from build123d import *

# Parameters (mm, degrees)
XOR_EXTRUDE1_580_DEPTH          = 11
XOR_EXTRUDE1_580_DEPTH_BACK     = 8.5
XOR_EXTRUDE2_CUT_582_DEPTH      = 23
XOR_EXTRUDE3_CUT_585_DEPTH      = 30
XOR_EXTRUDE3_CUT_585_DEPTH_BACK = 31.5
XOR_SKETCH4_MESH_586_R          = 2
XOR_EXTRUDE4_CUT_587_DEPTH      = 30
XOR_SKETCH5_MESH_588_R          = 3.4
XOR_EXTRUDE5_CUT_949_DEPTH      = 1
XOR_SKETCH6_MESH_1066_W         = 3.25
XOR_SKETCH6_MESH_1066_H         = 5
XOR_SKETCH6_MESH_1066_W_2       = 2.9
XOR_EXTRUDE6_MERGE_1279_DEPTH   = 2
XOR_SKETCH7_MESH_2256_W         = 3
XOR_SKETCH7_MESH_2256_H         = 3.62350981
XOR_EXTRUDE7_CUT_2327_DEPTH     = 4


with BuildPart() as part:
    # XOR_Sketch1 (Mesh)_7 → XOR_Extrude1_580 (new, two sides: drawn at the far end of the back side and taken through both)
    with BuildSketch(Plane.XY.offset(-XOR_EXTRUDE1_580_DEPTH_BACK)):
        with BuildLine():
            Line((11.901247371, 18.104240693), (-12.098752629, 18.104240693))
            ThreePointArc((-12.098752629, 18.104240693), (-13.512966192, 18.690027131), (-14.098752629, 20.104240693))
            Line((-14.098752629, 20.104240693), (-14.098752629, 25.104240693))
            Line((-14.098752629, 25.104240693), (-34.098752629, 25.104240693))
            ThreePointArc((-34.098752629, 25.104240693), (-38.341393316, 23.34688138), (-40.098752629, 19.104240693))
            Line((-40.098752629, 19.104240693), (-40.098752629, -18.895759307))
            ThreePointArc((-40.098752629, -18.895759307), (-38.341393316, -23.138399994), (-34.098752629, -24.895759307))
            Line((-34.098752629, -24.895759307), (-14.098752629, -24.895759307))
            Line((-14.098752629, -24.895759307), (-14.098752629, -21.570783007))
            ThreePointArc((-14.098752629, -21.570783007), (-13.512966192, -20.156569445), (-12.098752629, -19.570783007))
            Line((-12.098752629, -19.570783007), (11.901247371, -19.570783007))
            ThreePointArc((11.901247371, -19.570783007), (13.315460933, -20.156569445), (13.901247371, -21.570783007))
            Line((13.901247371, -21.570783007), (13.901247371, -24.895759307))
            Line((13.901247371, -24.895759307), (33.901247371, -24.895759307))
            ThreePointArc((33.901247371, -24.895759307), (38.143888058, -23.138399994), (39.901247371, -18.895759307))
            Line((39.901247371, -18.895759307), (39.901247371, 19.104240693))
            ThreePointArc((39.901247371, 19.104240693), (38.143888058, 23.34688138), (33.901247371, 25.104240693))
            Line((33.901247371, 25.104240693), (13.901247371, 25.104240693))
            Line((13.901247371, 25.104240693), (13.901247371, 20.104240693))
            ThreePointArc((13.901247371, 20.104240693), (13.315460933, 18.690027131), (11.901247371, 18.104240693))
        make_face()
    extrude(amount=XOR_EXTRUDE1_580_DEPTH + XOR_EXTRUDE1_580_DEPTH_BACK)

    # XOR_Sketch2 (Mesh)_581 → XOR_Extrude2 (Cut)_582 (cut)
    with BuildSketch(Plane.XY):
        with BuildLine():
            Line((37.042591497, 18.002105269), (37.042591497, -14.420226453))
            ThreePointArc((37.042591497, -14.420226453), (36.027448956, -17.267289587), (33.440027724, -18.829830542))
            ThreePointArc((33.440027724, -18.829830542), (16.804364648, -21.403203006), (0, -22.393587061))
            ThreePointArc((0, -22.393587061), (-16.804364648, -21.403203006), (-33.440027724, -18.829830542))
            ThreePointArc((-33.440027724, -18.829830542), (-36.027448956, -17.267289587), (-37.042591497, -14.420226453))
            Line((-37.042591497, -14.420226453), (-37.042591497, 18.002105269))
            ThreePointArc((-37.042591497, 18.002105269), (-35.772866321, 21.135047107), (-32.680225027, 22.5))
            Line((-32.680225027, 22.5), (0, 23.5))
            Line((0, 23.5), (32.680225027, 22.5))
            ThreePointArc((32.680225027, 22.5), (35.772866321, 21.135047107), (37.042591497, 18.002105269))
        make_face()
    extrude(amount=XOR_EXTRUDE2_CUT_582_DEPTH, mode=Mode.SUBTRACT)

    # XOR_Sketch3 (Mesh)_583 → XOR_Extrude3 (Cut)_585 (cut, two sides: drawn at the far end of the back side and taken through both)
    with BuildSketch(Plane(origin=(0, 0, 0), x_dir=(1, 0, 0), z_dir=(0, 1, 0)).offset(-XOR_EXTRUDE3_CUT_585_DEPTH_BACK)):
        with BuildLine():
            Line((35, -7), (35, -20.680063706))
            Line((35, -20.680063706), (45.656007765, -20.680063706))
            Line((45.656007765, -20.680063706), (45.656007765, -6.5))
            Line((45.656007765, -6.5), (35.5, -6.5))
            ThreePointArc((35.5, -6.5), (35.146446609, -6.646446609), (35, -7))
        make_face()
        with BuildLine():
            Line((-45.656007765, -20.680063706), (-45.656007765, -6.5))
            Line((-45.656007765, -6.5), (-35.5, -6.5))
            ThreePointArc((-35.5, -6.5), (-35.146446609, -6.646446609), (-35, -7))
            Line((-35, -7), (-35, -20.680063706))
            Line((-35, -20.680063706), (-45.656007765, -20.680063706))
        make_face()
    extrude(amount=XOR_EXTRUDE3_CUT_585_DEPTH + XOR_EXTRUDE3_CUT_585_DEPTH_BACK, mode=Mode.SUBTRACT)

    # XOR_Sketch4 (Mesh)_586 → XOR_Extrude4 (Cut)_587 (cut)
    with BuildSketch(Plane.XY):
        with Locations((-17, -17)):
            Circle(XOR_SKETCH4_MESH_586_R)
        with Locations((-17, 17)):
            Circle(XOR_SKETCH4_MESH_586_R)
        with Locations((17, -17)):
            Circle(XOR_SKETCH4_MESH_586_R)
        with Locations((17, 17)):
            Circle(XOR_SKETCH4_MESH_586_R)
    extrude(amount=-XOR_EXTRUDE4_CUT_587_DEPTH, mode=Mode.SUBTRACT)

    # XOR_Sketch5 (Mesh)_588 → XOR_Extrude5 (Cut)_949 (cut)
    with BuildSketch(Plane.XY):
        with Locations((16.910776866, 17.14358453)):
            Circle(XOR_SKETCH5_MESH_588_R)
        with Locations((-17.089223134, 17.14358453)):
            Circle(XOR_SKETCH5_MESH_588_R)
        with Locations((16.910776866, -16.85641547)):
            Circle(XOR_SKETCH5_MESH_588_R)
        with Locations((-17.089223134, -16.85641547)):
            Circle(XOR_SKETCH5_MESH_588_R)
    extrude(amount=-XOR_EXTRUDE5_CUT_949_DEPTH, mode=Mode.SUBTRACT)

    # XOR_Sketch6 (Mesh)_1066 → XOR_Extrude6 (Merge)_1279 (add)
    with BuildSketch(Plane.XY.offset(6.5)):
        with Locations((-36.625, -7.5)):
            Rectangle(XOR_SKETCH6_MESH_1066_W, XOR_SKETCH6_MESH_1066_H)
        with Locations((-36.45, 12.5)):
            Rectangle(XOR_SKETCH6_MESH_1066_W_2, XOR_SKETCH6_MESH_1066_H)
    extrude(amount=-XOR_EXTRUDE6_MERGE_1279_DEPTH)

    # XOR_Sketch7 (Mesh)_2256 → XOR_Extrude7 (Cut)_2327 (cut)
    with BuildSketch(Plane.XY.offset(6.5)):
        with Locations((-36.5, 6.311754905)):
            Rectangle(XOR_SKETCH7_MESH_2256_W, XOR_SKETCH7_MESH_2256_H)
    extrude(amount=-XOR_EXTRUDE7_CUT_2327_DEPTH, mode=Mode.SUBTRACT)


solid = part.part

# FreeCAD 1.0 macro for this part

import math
import FreeCAD as App
import Part
import Sketcher
from FreeCAD import Vector

doc = App.newDocument("Part")
body = doc.addObject("PartDesign::Body", "Body")

sketch1 = doc.addObject("Sketcher::SketchObject", "Sketch")
body.addObject(sketch1)
sketch1.AttachmentSupport = (doc.XY_Plane, [""])
sketch1.MapMode = "FlatFace"
sketch1.addGeometry(Part.LineSegment(Vector(11.9, 18.1, 0), Vector(-12.1, 18.1, 0)), False)
sketch1.addGeometry(Part.ArcOfCircle(Part.Circle(Vector(-12.1, 20.1, 0), Vector(0, 0, 1), 2), math.radians(180), math.radians(270)), False)
sketch1.addGeometry(Part.LineSegment(Vector(-14.1, 20.1, 0), Vector(-14.1, 25.1, 0)), False)
sketch1.addGeometry(Part.LineSegment(Vector(-14.1, 25.1, 0), Vector(-34.1, 25.1, 0)), False)
sketch1.addGeometry(Part.ArcOfCircle(Part.Circle(Vector(-34.1, 19.1, 0), Vector(0, 0, 1), 6), math.radians(90), math.radians(180)), False)
sketch1.addGeometry(Part.LineSegment(Vector(-40.1, 19.1, 0), Vector(-40.1, -18.9, 0)), False)
sketch1.addGeometry(Part.ArcOfCircle(Part.Circle(Vector(-34.1, -18.9, 0), Vector(0, 0, 1), 6), math.radians(180), math.radians(270)), False)
sketch1.addGeometry(Part.LineSegment(Vector(-34.1, -24.9, 0), Vector(-14.1, -24.9, 0)), False)
sketch1.addGeometry(Part.LineSegment(Vector(-14.1, -24.9, 0), Vector(-14.1, -21.6, 0)), False)
sketch1.addGeometry(Part.ArcOfCircle(Part.Circle(Vector(-12.1, -21.6, 0), Vector(0, 0, 1), 2), math.radians(90), math.radians(180)), False)
sketch1.addGeometry(Part.LineSegment(Vector(-12.1, -19.6, 0), Vector(11.9, -19.6, 0)), False)
sketch1.addGeometry(Part.ArcOfCircle(Part.Circle(Vector(11.9, -21.6, 0), Vector(0, 0, 1), 2), math.radians(0), math.radians(90)), False)
sketch1.addGeometry(Part.LineSegment(Vector(13.9, -21.6, 0), Vector(13.9, -24.9, 0)), False)
sketch1.addGeometry(Part.LineSegment(Vector(13.9, -24.9, 0), Vector(33.9, -24.9, 0)), False)
sketch1.addGeometry(Part.ArcOfCircle(Part.Circle(Vector(33.9, -18.9, 0), Vector(0, 0, 1), 6), math.radians(-90), math.radians(0)), False)
sketch1.addGeometry(Part.LineSegment(Vector(39.9, -18.9, 0), Vector(39.9, 19.1, 0)), False)
sketch1.addGeometry(Part.ArcOfCircle(Part.Circle(Vector(33.9, 19.1, 0), Vector(0, 0, 1), 6), math.radians(0), math.radians(90)), False)
sketch1.addGeometry(Part.LineSegment(Vector(33.9, 25.1, 0), Vector(13.9, 25.1, 0)), False)
sketch1.addGeometry(Part.LineSegment(Vector(13.9, 25.1, 0), Vector(13.9, 20.1, 0)), False)
sketch1.addGeometry(Part.ArcOfCircle(Part.Circle(Vector(11.9, 20.1, 0), Vector(0, 0, 1), 2), math.radians(-90), math.radians(0)), False)
sketch1.addConstraint(Sketcher.Constraint("Tangent", 0, 2, 1, 2))
sketch1.addConstraint(Sketcher.Constraint("Tangent", 1, 1, 2, 1))
sketch1.addConstraint(Sketcher.Constraint("Coincident", 2, 2, 3, 1))
sketch1.addConstraint(Sketcher.Constraint("Tangent", 3, 2, 4, 1))
sketch1.addConstraint(Sketcher.Constraint("Tangent", 4, 2, 5, 1))
sketch1.addConstraint(Sketcher.Constraint("Tangent", 5, 2, 6, 1))
sketch1.addConstraint(Sketcher.Constraint("Tangent", 6, 2, 7, 1))
sketch1.addConstraint(Sketcher.Constraint("Coincident", 7, 2, 8, 1))
sketch1.addConstraint(Sketcher.Constraint("Tangent", 8, 2, 9, 2))
sketch1.addConstraint(Sketcher.Constraint("Tangent", 9, 1, 10, 1))
sketch1.addConstraint(Sketcher.Constraint("Tangent", 10, 2, 11, 2))
sketch1.addConstraint(Sketcher.Constraint("Tangent", 11, 1, 12, 1))
sketch1.addConstraint(Sketcher.Constraint("Coincident", 12, 2, 13, 1))
sketch1.addConstraint(Sketcher.Constraint("Tangent", 13, 2, 14, 1))
sketch1.addConstraint(Sketcher.Constraint("Tangent", 14, 2, 15, 1))
sketch1.addConstraint(Sketcher.Constraint("Tangent", 15, 2, 16, 1))
sketch1.addConstraint(Sketcher.Constraint("Tangent", 16, 2, 17, 1))
sketch1.addConstraint(Sketcher.Constraint("Coincident", 17, 2, 18, 1))
sketch1.addConstraint(Sketcher.Constraint("Tangent", 18, 2, 19, 2))
sketch1.addConstraint(Sketcher.Constraint("Tangent", 19, 1, 0, 1))
sketch1.addConstraint(Sketcher.Constraint("Horizontal", 0))
sketch1.addConstraint(Sketcher.Constraint("Vertical", 2))
sketch1.addConstraint(Sketcher.Constraint("Horizontal", 3))
sketch1.addConstraint(Sketcher.Constraint("Vertical", 5))
sketch1.addConstraint(Sketcher.Constraint("Horizontal", 7))
sketch1.addConstraint(Sketcher.Constraint("Vertical", 8))
sketch1.addConstraint(Sketcher.Constraint("Horizontal", 10))
sketch1.addConstraint(Sketcher.Constraint("Vertical", 12))
sketch1.addConstraint(Sketcher.Constraint("Horizontal", 13))
sketch1.addConstraint(Sketcher.Constraint("Vertical", 15))
sketch1.addConstraint(Sketcher.Constraint("Horizontal", 17))
sketch1.addConstraint(Sketcher.Constraint("Vertical", 18))
sketch1.addConstraint(Sketcher.Constraint("Equal", 4, 6))
sketch1.addConstraint(Sketcher.Constraint("Equal", 1, 9))
sketch1.addConstraint(Sketcher.Constraint("Equal", 9, 11))
sketch1.addConstraint(Sketcher.Constraint("Equal", 6, 14))
sketch1.addConstraint(Sketcher.Constraint("Equal", 14, 16))
sketch1.addConstraint(Sketcher.Constraint("Equal", 11, 19))
sketch1.addConstraint(Sketcher.Constraint("Horizontal", 6, 3, 14, 3))
sketch1.addConstraint(Sketcher.Constraint("Horizontal", 4, 3, 16, 3))
sketch1.addConstraint(Sketcher.Constraint("Vertical", 1, 3, 9, 3))
sketch1.addConstraint(Sketcher.Constraint("Vertical", 11, 3, 19, 3))
sketch1.addConstraint(Sketcher.Constraint("Equal", 7, 13))
sketch1.addConstraint(Sketcher.Constraint("Radius", 1, 2.0))
sketch1.addConstraint(Sketcher.Constraint("Radius", 4, 6.0))
sketch1.addConstraint(Sketcher.Constraint("DistanceX", 0, 2, 0, 1, 24.0))
sketch1.addConstraint(Sketcher.Constraint("DistanceX", 3, 2, 3, 1, 20.0))
sketch1.addConstraint(Sketcher.Constraint("DistanceY", 2, 1, 2, 2, 5.0))
sketch1.addConstraint(Sketcher.Constraint("DistanceY", 5, 2, 5, 1, 38.0))
sketch1.addConstraint(Sketcher.Constraint("DistanceY", 8, 1, 8, 2, 3.324976))
sketch1.addConstraint(Sketcher.Constraint("DistanceY", -1, 1, 1, 3, 20.104241))
sketch1.addConstraint(Sketcher.Constraint("DistanceX", 1, 3, -1, 1, 12.098753))
pad1 = doc.addObject("PartDesign::Pad", "Pad")
body.addObject(pad1)
pad1.Profile = sketch1
pad1.Type = "TwoLengths"
pad1.Length = 11
pad1.Length2 = 8.5

sketch2 = doc.addObject("Sketcher::SketchObject", "Sketch001")
body.addObject(sketch2)
sketch2.AttachmentSupport = (doc.XY_Plane, [""])
sketch2.MapMode = "FlatFace"
sketch2.addGeometry(Part.LineSegment(Vector(37, -14.4, 0), Vector(37, 18, 0)), False)
sketch2.addGeometry(Part.ArcOfCircle(Part.Circle(Vector(32.5, 18, 0), Vector(0, 0, 1), 4.5), math.radians(0), math.radians(88)), False)
sketch2.addGeometry(Part.LineSegment(Vector(32.7, 22.5, 0), Vector(0, 23.5, 0)), False)
sketch2.addGeometry(Part.LineSegment(Vector(0, 23.5, 0), Vector(-32.7, 22.5, 0)), False)
sketch2.addGeometry(Part.ArcOfCircle(Part.Circle(Vector(-32.5, 18, 0), Vector(0, 0, 1), 4.5), math.radians(92), math.radians(180)), False)
sketch2.addGeometry(Part.LineSegment(Vector(-37, 18, 0), Vector(-37, -14.4, 0)), False)
sketch2.addGeometry(Part.ArcOfCircle(Part.Circle(Vector(-32.5, -14.4, 0), Vector(0, 0, 1), 4.5), math.radians(-180), math.radians(-102)), False)
sketch2.addGeometry(Part.ArcOfCircle(Part.Circle(Vector(2.1, 155.6, 0), Vector(0, 0, 1), 178), math.radians(-101.5), math.radians(-90.66)), False)
sketch2.addGeometry(Part.ArcOfCircle(Part.Circle(Vector(-2.1, 155.6, 0), Vector(0, 0, 1), 178), math.radians(-89.34), math.radians(-78.5)), False)
sketch2.addGeometry(Part.ArcOfCircle(Part.Circle(Vector(32.5, -14.4, 0), Vector(0, 0, 1), 4.5), math.radians(-78), math.radians(0)), False)
sketch2.addConstraint(Sketcher.Constraint("Tangent", 0, 2, 1, 1))
sketch2.addConstraint(Sketcher.Constraint("Tangent", 1, 2, 2, 1))
sketch2.addConstraint(Sketcher.Constraint("Coincident", 2, 2, 3, 1))
sketch2.addConstraint(Sketcher.Constraint("Tangent", 3, 2, 4, 1))
sketch2.addConstraint(Sketcher.Constraint("Tangent", 4, 2, 5, 1))
sketch2.addConstraint(Sketcher.Constraint("Tangent", 5, 2, 6, 1))
sketch2.addConstraint(Sketcher.Constraint("Tangent", 6, 2, 7, 1))
sketch2.addConstraint(Sketcher.Constraint("Coincident", 7, 2, 8, 1))
sketch2.addConstraint(Sketcher.Constraint("Tangent", 8, 2, 9, 1))
sketch2.addConstraint(Sketcher.Constraint("Tangent", 9, 2, 0, 1))
sketch2.addConstraint(Sketcher.Constraint("Vertical", 0))
sketch2.addConstraint(Sketcher.Constraint("Vertical", 5))
sketch2.addConstraint(Sketcher.Constraint("Equal", 1, 4))
sketch2.addConstraint(Sketcher.Constraint("Equal", 4, 6))
sketch2.addConstraint(Sketcher.Constraint("Equal", 7, 8))
sketch2.addConstraint(Sketcher.Constraint("Equal", 6, 9))
sketch2.addConstraint(Sketcher.Constraint("Symmetric", 1, 3, 4, 3, -2))
sketch2.addConstraint(Sketcher.Constraint("Symmetric", 7, 3, 8, 3, -2))
sketch2.addConstraint(Sketcher.Constraint("PointOnObject", 2, 2, -2))
sketch2.addConstraint(Sketcher.Constraint("Radius", 7, 178.0))
sketch2.addConstraint(Sketcher.Constraint("Radius", 1, 4.5))
sketch2.addConstraint(Sketcher.Constraint("DistanceY", 1, 2, 2, 2, 1.0))
sketch2.addConstraint(Sketcher.Constraint("DistanceY", -1, 1, 1, 2, 22.5))
sketch2.addConstraint(Sketcher.Constraint("DistanceY", 0, 1, 0, 2, 32.422332))
sketch2.addConstraint(Sketcher.Constraint("Distance", 2, 32.695521))
sketch2.addConstraint(Sketcher.Constraint("DistanceX", -1, 1, 7, 3, 2.058561))
pocket1 = doc.addObject("PartDesign::Pocket", "Pocket")
body.addObject(pocket1)
pocket1.Profile = sketch2
pocket1.Length = 23
pocket1.Reversed = True

sketch3 = doc.addObject("Sketcher::SketchObject", "Sketch002")
body.addObject(sketch3)
sketch3.AttachmentSupport = (doc.XZ_Plane, [""])
sketch3.MapMode = "FlatFace"
sketch3.addGeometry(Part.LineSegment(Vector(35, 7, 0), Vector(35, 20.68, 0)), False)
sketch3.addGeometry(Part.LineSegment(Vector(35, 20.68, 0), Vector(45.66, 20.68, 0)), False)
sketch3.addGeometry(Part.LineSegment(Vector(45.66, 20.68, 0), Vector(45.66, 6.5, 0)), False)
sketch3.addGeometry(Part.LineSegment(Vector(45.66, 6.5, 0), Vector(35.5, 6.5, 0)), False)
sketch3.addGeometry(Part.ArcOfCircle(Part.Circle(Vector(35.5, 7, 0), Vector(0, 0, 1), 0.5), math.radians(180), math.radians(270)), False)
sketch3.addGeometry(Part.LineSegment(Vector(-45.66, 6.5, 0), Vector(-45.66, 20.68, 0)), False)
sketch3.addGeometry(Part.LineSegment(Vector(-45.66, 20.68, 0), Vector(-35, 20.68, 0)), False)
sketch3.addGeometry(Part.LineSegment(Vector(-35, 20.68, 0), Vector(-35, 7, 0)), False)
sketch3.addGeometry(Part.ArcOfCircle(Part.Circle(Vector(-35.5, 7, 0), Vector(0, 0, 1), 0.5), math.radians(-90), math.radians(0)), False)
sketch3.addGeometry(Part.LineSegment(Vector(-35.5, 6.5, 0), Vector(-45.66, 6.5, 0)), False)
sketch3.addConstraint(Sketcher.Constraint("Coincident", 0, 2, 1, 1))
sketch3.addConstraint(Sketcher.Constraint("Coincident", 1, 2, 2, 1))
sketch3.addConstraint(Sketcher.Constraint("Coincident", 2, 2, 3, 1))
sketch3.addConstraint(Sketcher.Constraint("Tangent", 3, 2, 4, 2))
sketch3.addConstraint(Sketcher.Constraint("Tangent", 4, 1, 0, 1))
sketch3.addConstraint(Sketcher.Constraint("Coincident", 5, 2, 6, 1))
sketch3.addConstraint(Sketcher.Constraint("Coincident", 6, 2, 7, 1))
sketch3.addConstraint(Sketcher.Constraint("Tangent", 7, 2, 8, 2))
sketch3.addConstraint(Sketcher.Constraint("Tangent", 8, 1, 9, 1))
sketch3.addConstraint(Sketcher.Constraint("Coincident", 9, 2, 5, 1))
sketch3.addConstraint(Sketcher.Constraint("Vertical", 0))
sketch3.addConstraint(Sketcher.Constraint("Horizontal", 1))
sketch3.addConstraint(Sketcher.Constraint("Vertical", 2))
sketch3.addConstraint(Sketcher.Constraint("Horizontal", 3))
sketch3.addConstraint(Sketcher.Constraint("Vertical", 5))
sketch3.addConstraint(Sketcher.Constraint("Horizontal", 6))
sketch3.addConstraint(Sketcher.Constraint("Vertical", 7))
sketch3.addConstraint(Sketcher.Constraint("Horizontal", 9))
sketch3.addConstraint(Sketcher.Constraint("Equal", 4, 8))
sketch3.addConstraint(Sketcher.Constraint("Symmetric", 4, 3, 8, 3, -2))
sketch3.addConstraint(Sketcher.Constraint("Symmetric", 1, 2, 5, 2, -2))
sketch3.addConstraint(Sketcher.Constraint("Radius", 4, 0.5))
sketch3.addConstraint(Sketcher.Constraint("DistanceY", -1, 1, 4, 3, 7.0))
sketch3.addConstraint(Sketcher.Constraint("DistanceX", -1, 1, 0, 2, 35.0))
sketch3.addConstraint(Sketcher.Constraint("DistanceX", 1, 1, 1, 2, 10.656008))
sketch3.addConstraint(Sketcher.Constraint("DistanceY", 0, 1, 0, 2, 13.680064))
pocket2 = doc.addObject("PartDesign::Pocket", "Pocket001")
body.addObject(pocket2)
pocket2.Profile = sketch3
pocket2.Type = "ThroughAll"
pocket2.Midplane = True

sketch4 = doc.addObject("Sketcher::SketchObject", "Sketch003")
body.addObject(sketch4)
sketch4.AttachmentSupport = (doc.XY_Plane, [""])
sketch4.MapMode = "FlatFace"
sketch4.addGeometry(Part.Circle(Vector(-17, -17, 0), Vector(0, 0, 1), 2), False)
sketch4.addGeometry(Part.Circle(Vector(-17, 17, 0), Vector(0, 0, 1), 2), False)
sketch4.addGeometry(Part.Circle(Vector(17, -17, 0), Vector(0, 0, 1), 2), False)
sketch4.addGeometry(Part.Circle(Vector(17, 17, 0), Vector(0, 0, 1), 2), False)
sketch4.addConstraint(Sketcher.Constraint("Equal", 0, 1))
sketch4.addConstraint(Sketcher.Constraint("Equal", 1, 2))
sketch4.addConstraint(Sketcher.Constraint("Equal", 2, 3))
sketch4.addConstraint(Sketcher.Constraint("Symmetric", 1, 3, 2, 3, -1, 1))
sketch4.addConstraint(Sketcher.Constraint("Symmetric", 0, 3, 3, 3, -1, 1))
sketch4.addConstraint(Sketcher.Constraint("Symmetric", 0, 3, 2, 3, -2))
sketch4.addConstraint(Sketcher.Constraint("Diameter", 0, 4.0))
sketch4.addConstraint(Sketcher.Constraint("DistanceX", 0, 3, -1, 1, 17.0))
sketch4.addConstraint(Sketcher.Constraint("DistanceY", 0, 3, -1, 1, 17.0))
pocket3 = doc.addObject("PartDesign::Pocket", "Pocket002")
body.addObject(pocket3)
pocket3.Profile = sketch4
pocket3.Length = 30

sketch5 = doc.addObject("Sketcher::SketchObject", "Sketch004")
body.addObject(sketch5)
sketch5.AttachmentSupport = (doc.XY_Plane, [""])
sketch5.MapMode = "FlatFace"
sketch5.addGeometry(Part.Circle(Vector(16.9, 17.1, 0), Vector(0, 0, 1), 3.4), False)
sketch5.addGeometry(Part.Circle(Vector(-17.1, 17.1, 0), Vector(0, 0, 1), 3.4), False)
sketch5.addGeometry(Part.Circle(Vector(16.9, -16.9, 0), Vector(0, 0, 1), 3.4), False)
sketch5.addGeometry(Part.Circle(Vector(-17.1, -16.9, 0), Vector(0, 0, 1), 3.4), False)
sketch5.addConstraint(Sketcher.Constraint("Equal", 0, 1))
sketch5.addConstraint(Sketcher.Constraint("Equal", 1, 2))
sketch5.addConstraint(Sketcher.Constraint("Equal", 2, 3))
sketch5.addConstraint(Sketcher.Constraint("Horizontal", 0, 3, 1, 3))
sketch5.addConstraint(Sketcher.Constraint("Horizontal", 2, 3, 3, 3))
sketch5.addConstraint(Sketcher.Constraint("Vertical", 0, 3, 2, 3))
sketch5.addConstraint(Sketcher.Constraint("Vertical", 1, 3, 3, 3))
sketch5.addConstraint(Sketcher.Constraint("Diameter", 0, 6.8))
sketch5.addConstraint(Sketcher.Constraint("DistanceX", 1, 3, 0, 3, 34.0))
sketch5.addConstraint(Sketcher.Constraint("DistanceY", 2, 3, 0, 3, 34.0))
sketch5.addConstraint(Sketcher.Constraint("DistanceX", -1, 1, 0, 3, 16.910777))
sketch5.addConstraint(Sketcher.Constraint("DistanceY", -1, 1, 0, 3, 17.143585))
pocket4 = doc.addObject("PartDesign::Pocket", "Pocket003")
body.addObject(pocket4)
pocket4.Profile = sketch5
pocket4.Length = 1

sketch6 = doc.addObject("Sketcher::SketchObject", "Sketch005")
body.addObject(sketch6)
sketch6.AttachmentSupport = (doc.XY_Plane, [""])
sketch6.MapMode = "FlatFace"
sketch6.AttachmentOffset = App.Placement(Vector(0, 0, 6.5), App.Rotation())
sketch6.addGeometry(Part.LineSegment(Vector(-38.2, -5, 0), Vector(-38.2, -10, 0)), False)
sketch6.addGeometry(Part.LineSegment(Vector(-38.2, -10, 0), Vector(-35, -10, 0)), False)
sketch6.addGeometry(Part.LineSegment(Vector(-35, -10, 0), Vector(-35, -5, 0)), False)
sketch6.addGeometry(Part.LineSegment(Vector(-35, -5, 0), Vector(-38.2, -5, 0)), False)
sketch6.addGeometry(Part.LineSegment(Vector(-37.9, 15, 0), Vector(-37.9, 10, 0)), False)
sketch6.addGeometry(Part.LineSegment(Vector(-37.9, 10, 0), Vector(-35, 10, 0)), False)
sketch6.addGeometry(Part.LineSegment(Vector(-35, 10, 0), Vector(-35, 15, 0)), False)
sketch6.addGeometry(Part.LineSegment(Vector(-35, 15, 0), Vector(-37.9, 15, 0)), False)
sketch6.addConstraint(Sketcher.Constraint("Coincident", 0, 2, 1, 1))
sketch6.addConstraint(Sketcher.Constraint("Coincident", 1, 2, 2, 1))
sketch6.addConstraint(Sketcher.Constraint("Coincident", 2, 2, 3, 1))
sketch6.addConstraint(Sketcher.Constraint("Coincident", 3, 2, 0, 1))
sketch6.addConstraint(Sketcher.Constraint("Coincident", 4, 2, 5, 1))
sketch6.addConstraint(Sketcher.Constraint("Coincident", 5, 2, 6, 1))
sketch6.addConstraint(Sketcher.Constraint("Coincident", 6, 2, 7, 1))
sketch6.addConstraint(Sketcher.Constraint("Coincident", 7, 2, 4, 1))
sketch6.addConstraint(Sketcher.Constraint("Vertical", 0))
sketch6.addConstraint(Sketcher.Constraint("Horizontal", 1))
sketch6.addConstraint(Sketcher.Constraint("Vertical", 2))
sketch6.addConstraint(Sketcher.Constraint("Horizontal", 3))
sketch6.addConstraint(Sketcher.Constraint("Vertical", 4))
sketch6.addConstraint(Sketcher.Constraint("Horizontal", 5))
sketch6.addConstraint(Sketcher.Constraint("Vertical", 6))
sketch6.addConstraint(Sketcher.Constraint("Horizontal", 7))
sketch6.addConstraint(Sketcher.Constraint("Symmetric", 1, 2, 5, 2, -1))
sketch6.addConstraint(Sketcher.Constraint("Equal", 2, 4))
sketch6.addConstraint(Sketcher.Constraint("DistanceY", 0, 2, 0, 1, 5.0))
sketch6.addConstraint(Sketcher.Constraint("DistanceX", 5, 1, 5, 2, 2.9))
sketch6.addConstraint(Sketcher.Constraint("DistanceY", 0, 2, -1, 1, 10.0))
sketch6.addConstraint(Sketcher.Constraint("DistanceX", 1, 2, -1, 1, 35.0))
sketch6.addConstraint(Sketcher.Constraint("DistanceX", 1, 1, 1, 2, 3.25))
pad2 = doc.addObject("PartDesign::Pad", "Pad001")
body.addObject(pad2)
pad2.Profile = sketch6
pad2.Length = 2
pad2.Reversed = True

sketch7 = doc.addObject("Sketcher::SketchObject", "Sketch006")
body.addObject(sketch7)
sketch7.AttachmentSupport = (doc.XY_Plane, [""])
sketch7.MapMode = "FlatFace"
sketch7.AttachmentOffset = App.Placement(Vector(0, 0, 6.5), App.Rotation())
sketch7.addGeometry(Part.LineSegment(Vector(-38, 8.1, 0), Vector(-38, 4.5, 0)), False)
sketch7.addGeometry(Part.LineSegment(Vector(-38, 4.5, 0), Vector(-35, 4.5, 0)), False)
sketch7.addGeometry(Part.LineSegment(Vector(-35, 4.5, 0), Vector(-35, 8.1, 0)), False)
sketch7.addGeometry(Part.LineSegment(Vector(-35, 8.1, 0), Vector(-38, 8.1, 0)), False)
sketch7.addConstraint(Sketcher.Constraint("Coincident", 0, 2, 1, 1))
sketch7.addConstraint(Sketcher.Constraint("Coincident", 1, 2, 2, 1))
sketch7.addConstraint(Sketcher.Constraint("Coincident", 2, 2, 3, 1))
sketch7.addConstraint(Sketcher.Constraint("Coincident", 3, 2, 0, 1))
sketch7.addConstraint(Sketcher.Constraint("Vertical", 0))
sketch7.addConstraint(Sketcher.Constraint("Horizontal", 1))
sketch7.addConstraint(Sketcher.Constraint("Vertical", 2))
sketch7.addConstraint(Sketcher.Constraint("Horizontal", 3))
sketch7.addConstraint(Sketcher.Constraint("DistanceX", 1, 1, 1, 2, 3.0))
sketch7.addConstraint(Sketcher.Constraint("DistanceX", 0, 2, -1, 1, 38.0))
sketch7.addConstraint(Sketcher.Constraint("DistanceY", -1, 1, 0, 2, 4.5))
sketch7.addConstraint(Sketcher.Constraint("DistanceY", 0, 2, 0, 1, 3.62351))
pocket5 = doc.addObject("PartDesign::Pocket", "Pocket004")
body.addObject(pocket5)
pocket5.Profile = sketch7
pocket5.Length = 4

doc.recompute()
